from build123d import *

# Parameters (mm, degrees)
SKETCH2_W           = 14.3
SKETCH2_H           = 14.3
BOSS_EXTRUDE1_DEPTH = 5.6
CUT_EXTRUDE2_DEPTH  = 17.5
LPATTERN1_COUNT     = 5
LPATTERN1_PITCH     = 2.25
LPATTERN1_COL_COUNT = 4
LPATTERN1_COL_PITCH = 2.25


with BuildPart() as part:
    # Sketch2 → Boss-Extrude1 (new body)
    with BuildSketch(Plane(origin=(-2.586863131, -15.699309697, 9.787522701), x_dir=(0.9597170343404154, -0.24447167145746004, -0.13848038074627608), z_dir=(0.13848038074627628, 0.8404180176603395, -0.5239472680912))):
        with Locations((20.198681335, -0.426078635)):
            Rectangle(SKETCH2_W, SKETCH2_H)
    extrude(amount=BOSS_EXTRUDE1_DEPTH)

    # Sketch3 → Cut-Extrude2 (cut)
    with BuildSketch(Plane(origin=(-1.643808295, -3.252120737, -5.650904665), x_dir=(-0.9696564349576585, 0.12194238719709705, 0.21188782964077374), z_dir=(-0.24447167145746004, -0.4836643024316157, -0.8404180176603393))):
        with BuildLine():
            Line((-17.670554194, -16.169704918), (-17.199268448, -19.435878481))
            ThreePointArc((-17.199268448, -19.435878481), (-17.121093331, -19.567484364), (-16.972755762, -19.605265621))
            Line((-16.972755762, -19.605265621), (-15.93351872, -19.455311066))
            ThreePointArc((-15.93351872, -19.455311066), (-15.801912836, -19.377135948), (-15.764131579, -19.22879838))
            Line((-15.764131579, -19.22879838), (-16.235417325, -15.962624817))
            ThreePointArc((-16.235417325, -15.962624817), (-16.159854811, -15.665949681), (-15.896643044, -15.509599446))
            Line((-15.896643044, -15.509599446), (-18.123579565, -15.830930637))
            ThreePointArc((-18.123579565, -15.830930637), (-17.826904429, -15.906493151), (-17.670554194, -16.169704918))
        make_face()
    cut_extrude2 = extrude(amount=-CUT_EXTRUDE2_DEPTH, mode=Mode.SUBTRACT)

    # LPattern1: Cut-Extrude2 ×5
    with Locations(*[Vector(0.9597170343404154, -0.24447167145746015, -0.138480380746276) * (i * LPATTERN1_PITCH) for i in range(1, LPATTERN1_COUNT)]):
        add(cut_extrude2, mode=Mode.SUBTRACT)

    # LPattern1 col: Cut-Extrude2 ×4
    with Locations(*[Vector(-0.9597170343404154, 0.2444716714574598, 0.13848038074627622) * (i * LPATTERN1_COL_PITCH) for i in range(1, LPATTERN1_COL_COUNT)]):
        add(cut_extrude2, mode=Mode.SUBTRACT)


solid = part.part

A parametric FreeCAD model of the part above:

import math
import FreeCAD as App
import Part
import Sketcher
Q = App.Units.Quantity

doc = App.newDocument("Part")
body = doc.addObject("PartDesign::Body", "Body")

sketch1 = body.newObject("Sketcher::SketchObject", "Sketch")
sketch1.Placement = App.Placement(App.Vector(-2.586863, -15.69931, 9.787523), App.Rotation(App.Vector(0.959717034, -0.244471671, -0.138480381), App.Vector(-0.244471671, -0.483664302, -0.840418018), App.Vector(0.138480381, 0.840418018, -0.523947268), "ZXY"))
sketch1.addGeometry(Part.LineSegment(App.Vector(13, 7, 0), App.Vector(13, -8, 0)), False)
sketch1.addGeometry(Part.LineSegment(App.Vector(13, -8, 0), App.Vector(27, -8, 0)), False)
sketch1.addGeometry(Part.LineSegment(App.Vector(27, -8, 0), App.Vector(27, 7, 0)), False)
sketch1.addGeometry(Part.LineSegment(App.Vector(27, 7, 0), App.Vector(13, 7, 0)), False)
sketch1.addConstraint(Sketcher.Constraint("Coincident", 0, 2, 1, 1))
sketch1.addConstraint(Sketcher.Constraint("Coincident", 1, 2, 2, 1))
sketch1.addConstraint(Sketcher.Constraint("Coincident", 2, 2, 3, 1))
sketch1.addConstraint(Sketcher.Constraint("Coincident", 3, 2, 0, 1))
sketch1.addConstraint(Sketcher.Constraint("Vertical", 0))
sketch1.addConstraint(Sketcher.Constraint("Horizontal", 1))
sketch1.addConstraint(Sketcher.Constraint("Vertical", 2))
sketch1.addConstraint(Sketcher.Constraint("Horizontal", 3))
sketch1.addConstraint(Sketcher.Constraint("Equal", 3, 0))
sketch1.addConstraint(Sketcher.Constraint("DistanceX", 1, 1, 1, 2, Q("14.3 mm")))
sketch1.addConstraint(Sketcher.Constraint("DistanceX", -1, 1, 0, 2, Q("13.048681 mm")))
sketch1.addConstraint(Sketcher.Constraint("DistanceY", 0, 2, -1, 1, Q("7.576079 mm")))
pad1 = body.newObject("PartDesign::Pad", "Pad")
pad1.Profile = sketch1
pad1.Length = 5.6

sketch2 = body.newObject("Sketcher::SketchObject", "Sketch001")
sketch2.Placement = App.Placement(App.Vector(-1.643808, -3.252121, -5.650905), App.Rotation(App.Vector(-0.969656435, 0.121942387, 0.21188783), App.Vector(0, 0.866717311, -0.498799662), App.Vector(-0.244471671, -0.483664302, -0.840418018), "ZXY"))
sketch2.addGeometry(Part.LineSegment(App.Vector(-17.67, -16.17, 0), App.Vector(-17.2, -19.44, 0)), False)
sketch2.addGeometry(Part.ArcOfCircle(Part.Circle(App.Vector(-17, -19.41, 0), App.Vector(0, 0, 1), 0.2), math.radians(-172), math.radians(-82)), False)
sketch2.addGeometry(Part.LineSegment(App.Vector(-16.97, -19.61, 0), App.Vector(-15.93, -19.46, 0)), False)
sketch2.addGeometry(Part.ArcOfCircle(Part.Circle(App.Vector(-15.96, -19.26, 0), App.Vector(0, 0, 1), 0.2), math.radians(-82), math.radians(8)), False)
sketch2.addGeometry(Part.LineSegment(App.Vector(-15.76, -19.23, 0), App.Vector(-16.24, -15.96, 0)), False)
sketch2.addGeometry(Part.ArcOfCircle(Part.Circle(App.Vector(-15.84, -15.91, 0), App.Vector(0, 0, 1), 0.4), math.radians(98), math.radians(188)), False)
sketch2.addGeometry(Part.LineSegment(App.Vector(-15.9, -15.51, 0), App.Vector(-18.12, -15.83, 0)), False)
sketch2.addGeometry(Part.ArcOfCircle(Part.Circle(App.Vector(-18.07, -16.23, 0), App.Vector(0, 0, 1), 0.4), math.radians(8), math.radians(98)), False)
sketch2.addConstraint(Sketcher.Constraint("Tangent", 0, 2, 1, 1))
sketch2.addConstraint(Sketcher.Constraint("Tangent", 1, 2, 2, 1))
sketch2.addConstraint(Sketcher.Constraint("Tangent", 2, 2, 3, 1))
sketch2.addConstraint(Sketcher.Constraint("Tangent", 3, 2, 4, 1))
sketch2.addConstraint(Sketcher.Constraint("Tangent", 4, 2, 5, 2))
sketch2.addConstraint(Sketcher.Constraint("Tangent", 5, 1, 6, 1))
sketch2.addConstraint(Sketcher.Constraint("Tangent", 6, 2, 7, 2))
sketch2.addConstraint(Sketcher.Constraint("Tangent", 7, 1, 0, 1))
sketch2.addConstraint(Sketcher.Constraint("Equal", 1, 3))
sketch2.addConstraint(Sketcher.Constraint("Equal", 5, 7))
sketch2.addConstraint(Sketcher.Constraint("Perpendicular", 0, 2))
sketch2.addConstraint(Sketcher.Constraint("Perpendicular", 2, 4))
sketch2.addConstraint(Sketcher.Constraint("Perpendicular", 4, 6))
sketch2.addConstraint(Sketcher.Constraint("Radius", 1, Q("0.2 mm")))
sketch2.addConstraint(Sketcher.Constraint("Radius", 5, Q("0.4 mm")))
sketch2.addConstraint(Sketcher.Constraint("Distance", 0, Q("3.3 mm")))
sketch2.addConstraint(Sketcher.Constraint("Distance", 2, Q("1.05 mm")))
sketch2.addConstraint(Sketcher.Constraint("DistanceX", 2, 2, 5, 3, Q("0.094001 mm")))
sketch2.addConstraint(Sketcher.Constraint("DistanceY", 5, 3, -1, 1, Q("15.905499 mm")))
sketch2.addConstraint(Sketcher.Constraint("DistanceX", 1, 3, -1, 1, Q("17.001319 mm")))
pocket1 = body.newObject("PartDesign::Pocket", "Pocket")
pocket1.Profile = sketch2
pocket1.Length = 17.5
doc.recompute()

datumline = body.newObject("PartDesign::Line", "DatumLine")
datumline.Placement = App.Placement(App.Vector(0, 0, 0), App.Rotation(App.Vector(0, 0, 1), App.Vector(0.959717034, -0.244471672, -0.138480381)))
linearpattern = body.newObject("PartDesign::LinearPattern", "LinearPattern")
linearpattern.Originals = [pocket1]
linearpattern.Direction = (datumline, [""])
linearpattern.Mode = "offset"
linearpattern.Offset = 2.25
linearpattern.Occurrences = 5
body.Tip = linearpattern
doc.recompute()

datumline2 = body.newObject("PartDesign::Line", "DatumLine001")
datumline2.Placement = App.Placement(App.Vector(0, 0, 0), App.Rotation(App.Vector(0, 0, 1), App.Vector(-0.959717034, 0.244471672, 0.138480381)))
linearpattern2 = body.newObject("PartDesign::LinearPattern", "LinearPattern001")
linearpattern2.Originals = [pocket1]
linearpattern2.Direction = (datumline2, [""])
linearpattern2.Mode = "offset"
linearpattern2.Offset = 2.25
linearpattern2.Occurrences = 4
body.Tip = linearpattern2

doc.recompute()
